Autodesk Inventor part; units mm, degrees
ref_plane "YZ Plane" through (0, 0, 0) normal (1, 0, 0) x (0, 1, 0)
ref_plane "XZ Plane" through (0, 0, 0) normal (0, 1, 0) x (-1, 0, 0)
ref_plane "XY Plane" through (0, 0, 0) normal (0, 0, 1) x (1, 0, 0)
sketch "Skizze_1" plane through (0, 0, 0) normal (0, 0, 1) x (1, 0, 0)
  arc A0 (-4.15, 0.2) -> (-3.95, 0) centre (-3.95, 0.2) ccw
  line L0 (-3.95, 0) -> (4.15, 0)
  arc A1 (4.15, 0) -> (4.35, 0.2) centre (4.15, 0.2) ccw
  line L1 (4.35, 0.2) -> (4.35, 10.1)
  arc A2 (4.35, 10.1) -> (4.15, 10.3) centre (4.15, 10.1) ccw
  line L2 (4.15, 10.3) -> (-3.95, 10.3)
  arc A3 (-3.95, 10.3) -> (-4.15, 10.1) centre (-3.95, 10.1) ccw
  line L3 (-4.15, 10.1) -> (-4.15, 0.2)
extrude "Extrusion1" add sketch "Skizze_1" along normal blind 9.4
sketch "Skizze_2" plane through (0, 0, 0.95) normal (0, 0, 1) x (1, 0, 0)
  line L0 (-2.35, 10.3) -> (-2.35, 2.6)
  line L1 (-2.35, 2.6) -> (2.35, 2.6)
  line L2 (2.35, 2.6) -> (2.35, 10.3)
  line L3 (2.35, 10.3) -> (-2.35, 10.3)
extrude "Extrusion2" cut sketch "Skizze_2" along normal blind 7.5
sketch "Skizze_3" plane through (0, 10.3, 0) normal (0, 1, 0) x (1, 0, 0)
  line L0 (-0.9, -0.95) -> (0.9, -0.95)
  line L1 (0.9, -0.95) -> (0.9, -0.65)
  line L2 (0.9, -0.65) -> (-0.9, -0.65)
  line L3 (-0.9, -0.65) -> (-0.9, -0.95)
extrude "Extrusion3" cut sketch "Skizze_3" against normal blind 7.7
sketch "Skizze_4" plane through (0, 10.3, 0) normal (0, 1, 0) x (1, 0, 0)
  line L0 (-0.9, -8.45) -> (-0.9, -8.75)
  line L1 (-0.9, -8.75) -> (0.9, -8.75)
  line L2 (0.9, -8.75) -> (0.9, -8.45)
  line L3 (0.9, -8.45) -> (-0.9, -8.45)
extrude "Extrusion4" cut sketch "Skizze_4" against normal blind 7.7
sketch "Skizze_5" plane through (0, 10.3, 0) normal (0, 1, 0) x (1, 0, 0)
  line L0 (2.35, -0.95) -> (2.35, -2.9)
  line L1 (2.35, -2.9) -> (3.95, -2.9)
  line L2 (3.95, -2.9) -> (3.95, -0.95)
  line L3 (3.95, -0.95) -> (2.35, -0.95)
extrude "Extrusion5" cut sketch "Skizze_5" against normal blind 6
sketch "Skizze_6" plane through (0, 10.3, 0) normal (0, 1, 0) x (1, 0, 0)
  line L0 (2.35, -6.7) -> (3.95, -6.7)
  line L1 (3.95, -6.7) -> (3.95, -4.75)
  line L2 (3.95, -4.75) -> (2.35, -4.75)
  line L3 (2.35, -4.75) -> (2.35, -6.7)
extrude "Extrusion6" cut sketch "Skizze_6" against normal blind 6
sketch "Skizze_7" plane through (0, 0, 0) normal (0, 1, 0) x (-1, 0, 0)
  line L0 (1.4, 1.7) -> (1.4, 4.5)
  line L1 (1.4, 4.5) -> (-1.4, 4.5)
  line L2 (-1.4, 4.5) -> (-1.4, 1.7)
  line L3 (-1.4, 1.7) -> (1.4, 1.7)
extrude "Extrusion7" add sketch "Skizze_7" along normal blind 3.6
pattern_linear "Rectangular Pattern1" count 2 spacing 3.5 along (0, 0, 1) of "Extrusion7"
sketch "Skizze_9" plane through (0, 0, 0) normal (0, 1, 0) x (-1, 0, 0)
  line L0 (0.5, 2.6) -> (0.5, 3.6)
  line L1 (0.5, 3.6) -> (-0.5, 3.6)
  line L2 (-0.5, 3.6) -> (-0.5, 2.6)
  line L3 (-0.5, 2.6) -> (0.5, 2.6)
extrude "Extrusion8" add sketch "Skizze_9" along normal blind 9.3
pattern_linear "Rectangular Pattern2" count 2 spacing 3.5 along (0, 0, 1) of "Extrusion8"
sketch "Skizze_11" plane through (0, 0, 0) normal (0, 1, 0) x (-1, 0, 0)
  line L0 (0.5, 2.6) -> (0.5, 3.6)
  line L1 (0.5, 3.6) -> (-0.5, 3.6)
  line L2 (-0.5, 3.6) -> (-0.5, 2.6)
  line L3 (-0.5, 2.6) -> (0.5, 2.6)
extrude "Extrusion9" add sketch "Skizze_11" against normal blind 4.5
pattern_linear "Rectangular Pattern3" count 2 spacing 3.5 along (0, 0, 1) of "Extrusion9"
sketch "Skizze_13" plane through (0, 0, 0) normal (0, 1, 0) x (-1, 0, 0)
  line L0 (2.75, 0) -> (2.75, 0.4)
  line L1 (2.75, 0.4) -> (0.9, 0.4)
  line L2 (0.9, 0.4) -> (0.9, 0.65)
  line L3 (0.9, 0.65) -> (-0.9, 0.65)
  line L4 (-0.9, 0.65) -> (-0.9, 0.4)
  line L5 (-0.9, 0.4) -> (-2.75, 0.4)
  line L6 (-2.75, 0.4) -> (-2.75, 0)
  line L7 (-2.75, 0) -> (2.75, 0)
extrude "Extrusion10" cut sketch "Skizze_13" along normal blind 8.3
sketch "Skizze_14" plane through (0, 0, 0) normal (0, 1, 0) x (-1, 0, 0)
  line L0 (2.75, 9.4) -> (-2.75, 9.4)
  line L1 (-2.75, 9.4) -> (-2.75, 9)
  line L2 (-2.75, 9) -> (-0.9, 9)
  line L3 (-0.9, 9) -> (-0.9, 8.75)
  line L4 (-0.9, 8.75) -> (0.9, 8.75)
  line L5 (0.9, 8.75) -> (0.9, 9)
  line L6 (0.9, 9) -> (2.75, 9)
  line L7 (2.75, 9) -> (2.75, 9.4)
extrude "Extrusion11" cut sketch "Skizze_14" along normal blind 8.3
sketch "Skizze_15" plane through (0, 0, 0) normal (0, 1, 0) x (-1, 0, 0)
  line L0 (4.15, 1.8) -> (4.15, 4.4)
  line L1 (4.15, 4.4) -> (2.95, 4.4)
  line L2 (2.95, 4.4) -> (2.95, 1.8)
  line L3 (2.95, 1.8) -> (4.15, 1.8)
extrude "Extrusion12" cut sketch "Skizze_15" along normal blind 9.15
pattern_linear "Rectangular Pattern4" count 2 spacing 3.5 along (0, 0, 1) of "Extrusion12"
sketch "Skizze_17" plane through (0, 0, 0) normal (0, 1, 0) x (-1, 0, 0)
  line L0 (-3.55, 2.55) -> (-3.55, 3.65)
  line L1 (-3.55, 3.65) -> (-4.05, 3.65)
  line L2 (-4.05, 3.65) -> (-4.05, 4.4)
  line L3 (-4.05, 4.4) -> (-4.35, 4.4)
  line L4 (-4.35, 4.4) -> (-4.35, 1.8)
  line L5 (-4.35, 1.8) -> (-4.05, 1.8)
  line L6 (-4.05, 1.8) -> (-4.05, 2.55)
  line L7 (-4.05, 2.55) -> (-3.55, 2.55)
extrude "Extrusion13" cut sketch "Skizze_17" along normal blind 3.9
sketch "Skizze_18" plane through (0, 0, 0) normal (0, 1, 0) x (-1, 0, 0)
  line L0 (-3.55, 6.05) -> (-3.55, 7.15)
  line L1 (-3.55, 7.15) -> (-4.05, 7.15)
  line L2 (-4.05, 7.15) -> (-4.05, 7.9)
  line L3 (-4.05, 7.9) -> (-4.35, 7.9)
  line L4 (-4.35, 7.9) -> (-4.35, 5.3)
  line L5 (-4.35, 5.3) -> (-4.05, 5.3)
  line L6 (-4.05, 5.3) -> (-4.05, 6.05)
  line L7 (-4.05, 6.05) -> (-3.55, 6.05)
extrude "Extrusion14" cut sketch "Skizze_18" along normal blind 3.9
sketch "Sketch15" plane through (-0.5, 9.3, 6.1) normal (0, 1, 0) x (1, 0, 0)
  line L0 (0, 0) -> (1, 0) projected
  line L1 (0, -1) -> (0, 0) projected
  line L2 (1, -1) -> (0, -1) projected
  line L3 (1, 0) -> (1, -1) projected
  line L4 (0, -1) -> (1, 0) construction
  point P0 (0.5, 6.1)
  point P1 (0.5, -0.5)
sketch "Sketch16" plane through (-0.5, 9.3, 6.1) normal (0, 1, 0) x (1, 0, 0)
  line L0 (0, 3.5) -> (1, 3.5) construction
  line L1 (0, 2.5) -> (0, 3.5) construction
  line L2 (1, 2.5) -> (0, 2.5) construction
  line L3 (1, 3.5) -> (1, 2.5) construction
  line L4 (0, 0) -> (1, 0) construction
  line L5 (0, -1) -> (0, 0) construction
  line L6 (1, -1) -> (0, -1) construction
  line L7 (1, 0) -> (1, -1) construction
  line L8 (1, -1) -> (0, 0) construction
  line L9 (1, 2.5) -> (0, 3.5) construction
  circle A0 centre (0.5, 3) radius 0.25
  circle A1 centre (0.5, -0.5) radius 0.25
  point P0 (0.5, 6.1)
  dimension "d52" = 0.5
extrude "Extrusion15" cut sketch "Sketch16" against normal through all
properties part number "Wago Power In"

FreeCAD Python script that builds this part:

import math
import FreeCAD as App
import Part
import Sketcher
Q = App.Units.Quantity


def add_polygon(sketch, points):
    """Adds a closed chain of lines whose ends are joined by coincident constraints."""
    first, n = sketch.GeometryCount, len(points)
    for a, b in zip(points, points[1:] + points[:1]):
        sketch.addGeometry(Part.LineSegment(App.Vector(*a, 0), App.Vector(*b, 0)), False)
    for i in range(n):
        sketch.addConstraint(Sketcher.Constraint("Coincident", first + i, 2, first + (i + 1) % n, 1))

doc = App.newDocument("Part")
body = doc.addObject("PartDesign::Body", "Body")

sketch1 = body.newObject("Sketcher::SketchObject", "Sketch")
sketch1.AttachmentSupport = (doc.getObject("XY_Plane"), [""])
sketch1.MapMode = "FlatFace"
sketch1.addGeometry([
    Part.LineSegment(App.Vector(-4.15, 10.1, 0), App.Vector(-4.15, 0.2, 0)),
    Part.ArcOfCircle(Part.Circle(App.Vector(-3.95, 0.2, 0), App.Vector(0, 0, 1), 0.2), math.radians(180), math.radians(270)),
    Part.LineSegment(App.Vector(-3.95, 0, 0), App.Vector(4.15, 0, 0)),
    Part.ArcOfCircle(Part.Circle(App.Vector(4.15, 0.2, 0), App.Vector(0, 0, 1), 0.2), math.radians(-90), math.radians(0)),
    Part.LineSegment(App.Vector(4.35, 0.2, 0), App.Vector(4.35, 10.1, 0)),
    Part.ArcOfCircle(Part.Circle(App.Vector(4.15, 10.1, 0), App.Vector(0, 0, 1), 0.2), math.radians(0), math.radians(90)),
    Part.LineSegment(App.Vector(4.15, 10.3, 0), App.Vector(-3.95, 10.3, 0)),
    Part.ArcOfCircle(Part.Circle(App.Vector(-3.95, 10.1, 0), App.Vector(0, 0, 1), 0.2), math.radians(90), math.radians(180)),
], False)
sketch1.addConstraint([
    Sketcher.Constraint("Tangent", 0, 2, 1, 1),
    Sketcher.Constraint("Tangent", 1, 2, 2, 1),
    Sketcher.Constraint("Tangent", 2, 2, 3, 1),
    Sketcher.Constraint("Tangent", 3, 2, 4, 1),
    Sketcher.Constraint("Tangent", 4, 2, 5, 1),
    Sketcher.Constraint("Tangent", 5, 2, 6, 1),
    Sketcher.Constraint("Tangent", 6, 2, 7, 1),
    Sketcher.Constraint("Tangent", 7, 2, 0, 1),
    Sketcher.Constraint("Vertical", 0),
    Sketcher.Constraint("Horizontal", 2),
    Sketcher.Constraint("Vertical", 4),
    Sketcher.Constraint("Horizontal", 6),
    Sketcher.Constraint("Equal", 1, 3),
    Sketcher.Constraint("Equal", 3, 5),
    Sketcher.Constraint("Equal", 5, 7),
    Sketcher.Constraint("PointOnObject", 1, 2, -1),
    Sketcher.Constraint("Radius", 1, Q("0.2 mm")),
    Sketcher.Constraint("DistanceX", 2, 1, 2, 2, Q("8.1 mm")),
    Sketcher.Constraint("DistanceY", 0, 2, 0, 1, Q("9.9 mm")),
    Sketcher.Constraint("DistanceX", 1, 3, -1, 1, Q("3.95 mm")),
])
pad1 = body.newObject("PartDesign::Pad", "Pad")
pad1.Profile = sketch1
pad1.Length = 9.4

sketch2 = body.newObject("Sketcher::SketchObject", "Sketch001")
sketch2.AttachmentSupport = (doc.getObject("XY_Plane"), [""])
sketch2.MapMode = "FlatFace"
sketch2.AttachmentOffset = App.Placement(App.Vector(0, 0, 0.95), App.Rotation())
add_polygon(sketch2, [(2.4, 10.3), (-2.4, 10.3), (-2.4, 2.6), (2.4, 2.6)])
sketch2.addConstraint([
    Sketcher.Constraint("Horizontal", 0),
    Sketcher.Constraint("Vertical", 1),
    Sketcher.Constraint("Horizontal", 2),
    Sketcher.Constraint("Vertical", 3),
    Sketcher.Constraint("DistanceX", 0, 2, 0, 1, Q("4.7 mm")),
    Sketcher.Constraint("DistanceY", 1, 2, 1, 1, Q("7.7 mm")),
    Sketcher.Constraint("DistanceY", -1, 1, 0, 2, Q("10.3 mm")),
    Sketcher.Constraint("DistanceX", 0, 2, -1, 1, Q("2.35 mm")),
])
pocket1 = body.newObject("PartDesign::Pocket", "Pocket")
pocket1.Profile = sketch2
pocket1.Length = 7.5
pocket1.Reversed = True

sketch3 = body.newObject("Sketcher::SketchObject", "Sketch002")
sketch3.AttachmentSupport = (doc.getObject("XZ_Plane"), [""])
sketch3.MapMode = "FlatFace"
sketch3.AttachmentOffset = App.Placement(App.Vector(0, 0, -10.3), App.Rotation())
add_polygon(sketch3, [(-0.9, 0.65), (-0.9, 0.95), (0.9, 0.95), (0.9, 0.65)])
sketch3.addConstraint([
    Sketcher.Constraint("Vertical", 0),
    Sketcher.Constraint("Horizontal", 1),
    Sketcher.Constraint("Vertical", 2),
    Sketcher.Constraint("Horizontal", 3),
    Sketcher.Constraint("DistanceX", 1, 1, 1, 2, Q("1.8 mm")),
    Sketcher.Constraint("DistanceY", 0, 1, 0, 2, Q("0.3 mm")),
    Sketcher.Constraint("DistanceX", 0, 2, -1, 1, Q("0.9 mm")),
    Sketcher.Constraint("DistanceY", -1, 1, 0, 2, Q("0.95 mm")),
])
pocket2 = body.newObject("PartDesign::Pocket", "Pocket001")
pocket2.Profile = sketch3
pocket2.Length = 7.7
pocket2.Reversed = True

sketch4 = body.newObject("Sketcher::SketchObject", "Sketch003")
sketch4.AttachmentSupport = (doc.getObject("XZ_Plane"), [""])
sketch4.MapMode = "FlatFace"
sketch4.AttachmentOffset = App.Placement(App.Vector(0, 0, -10.3), App.Rotation())
add_polygon(sketch4, [(0.9, 8.45), (-0.9, 8.45), (-0.9, 8.75), (0.9, 8.75)])
sketch4.addConstraint([
    Sketcher.Constraint("Horizontal", 0),
    Sketcher.Constraint("Vertical", 1),
    Sketcher.Constraint("Horizontal", 2),
    Sketcher.Constraint("Vertical", 3),
    Sketcher.Constraint("DistanceX", 0, 2, 0, 1, Q("1.8 mm")),
    Sketcher.Constraint("DistanceY", 1, 1, 1, 2, Q("0.3 mm")),
    Sketcher.Constraint("DistanceX", 0, 2, -1, 1, Q("0.9 mm")),
    Sketcher.Constraint("DistanceY", -1, 1, 0, 2, Q("8.45 mm")),
])
pocket3 = body.newObject("PartDesign::Pocket", "Pocket002")
pocket3.Profile = sketch4
pocket3.Length = 7.7
pocket3.Reversed = True

sketch5 = body.newObject("Sketcher::SketchObject", "Sketch004")
sketch5.AttachmentSupport = (doc.getObject("XZ_Plane"), [""])
sketch5.MapMode = "FlatFace"
sketch5.AttachmentOffset = App.Placement(App.Vector(0, 0, -10.3), App.Rotation())
add_polygon(sketch5, [(4, 0.9), (2.4, 0.9), (2.4, 2.9), (4, 2.9)])
sketch5.addConstraint([
    Sketcher.Constraint("Horizontal", 0),
    Sketcher.Constraint("Vertical", 1),
    Sketcher.Constraint("Horizontal", 2),
    Sketcher.Constraint("Vertical", 3),
    Sketcher.Constraint("DistanceX", 0, 2, 0, 1, Q("1.6 mm")),
    Sketcher.Constraint("DistanceY", 1, 1, 1, 2, Q("1.95 mm")),
    Sketcher.Constraint("DistanceY", -1, 1, 1, 2, Q("2.9 mm")),
    Sketcher.Constraint("DistanceX", -1, 1, 0, 2, Q("2.35 mm")),
])
pocket4 = body.newObject("PartDesign::Pocket", "Pocket003")
pocket4.Profile = sketch5
pocket4.Length = 6
pocket4.Reversed = True

sketch6 = body.newObject("Sketcher::SketchObject", "Sketch005")
sketch6.AttachmentSupport = (doc.getObject("XZ_Plane"), [""])
sketch6.MapMode = "FlatFace"
sketch6.AttachmentOffset = App.Placement(App.Vector(0, 0, -10.3), App.Rotation())
add_polygon(sketch6, [(2.4, 4.8), (2.4, 6.7), (4, 6.7), (4, 4.8)])
sketch6.addConstraint([
    Sketcher.Constraint("Vertical", 0),
    Sketcher.Constraint("Horizontal", 1),
    Sketcher.Constraint("Vertical", 2),
    Sketcher.Constraint("Horizontal", 3),
    Sketcher.Constraint("DistanceX", 1, 1, 1, 2, Q("1.6 mm")),
    Sketcher.Constraint("DistanceY", 0, 1, 0, 2, Q("1.95 mm")),
    Sketcher.Constraint("DistanceY", -1, 1, 0, 2, Q("6.7 mm")),
    Sketcher.Constraint("DistanceX", -1, 1, 0, 2, Q("2.35 mm")),
])
pocket5 = body.newObject("PartDesign::Pocket", "Pocket004")
pocket5.Profile = sketch6
pocket5.Length = 6
pocket5.Reversed = True

sketch7 = body.newObject("Sketcher::SketchObject", "Sketch006")
sketch7.AttachmentSupport = (doc.getObject("XZ_Plane"), [""])
sketch7.MapMode = "FlatFace"
add_polygon(sketch7, [(1.4, 1.7), (-1.4, 1.7), (-1.4, 4.5), (1.4, 4.5)])
sketch7.addConstraint([
    Sketcher.Constraint("Horizontal", 0),
    Sketcher.Constraint("Vertical", 1),
    Sketcher.Constraint("Horizontal", 2),
    Sketcher.Constraint("Vertical", 3),
    Sketcher.Constraint("Equal", 2, 1),
    Sketcher.Constraint("DistanceX", 0, 2, 0, 1, Q("2.8 mm")),
    Sketcher.Constraint("DistanceX", 0, 2, -1, 1, Q("1.4 mm")),
    Sketcher.Constraint("DistanceY", -1, 1, 0, 2, Q("1.7 mm")),
])
pad2 = body.newObject("PartDesign::Pad", "Pad001")
pad2.Profile = sketch7
pad2.Length = 3.6
pad2.Reversed = True
doc.recompute()

linearpattern = body.newObject("PartDesign::LinearPattern", "LinearPattern")
linearpattern.Originals = [pad2]
linearpattern.Direction = (doc.getObject("Z_Axis"), [""])
linearpattern.Mode = "offset"
linearpattern.Offset = 3.5
linearpattern.Occurrences = 2
body.Tip = linearpattern

sketch8 = body.newObject("Sketcher::SketchObject", "Sketch007")
sketch8.AttachmentSupport = (doc.getObject("XZ_Plane"), [""])
sketch8.MapMode = "FlatFace"
add_polygon(sketch8, [(0.5, 2.6), (-0.5, 2.6), (-0.5, 3.6), (0.5, 3.6)])
sketch8.addConstraint([
    Sketcher.Constraint("Horizontal", 0),
    Sketcher.Constraint("Vertical", 1),
    Sketcher.Constraint("Horizontal", 2),
    Sketcher.Constraint("Vertical", 3),
    Sketcher.Constraint("Equal", 2, 1),
    Sketcher.Constraint("DistanceX", 0, 2, 0, 1, Q("1 mm")),
    Sketcher.Constraint("DistanceX", 0, 2, -1, 1, Q("0.5 mm")),
    Sketcher.Constraint("DistanceY", -1, 1, 0, 2, Q("2.6 mm")),
])
pad3 = body.newObject("PartDesign::Pad", "Pad002")
pad3.Profile = sketch8
pad3.Length = 9.3
pad3.Reversed = True
doc.recompute()

linearpattern2 = body.newObject("PartDesign::LinearPattern", "LinearPattern001")
linearpattern2.Originals = [pad3]
linearpattern2.Direction = (doc.getObject("Z_Axis"), [""])
linearpattern2.Mode = "offset"
linearpattern2.Offset = 3.5
linearpattern2.Occurrences = 2
body.Tip = linearpattern2

sketch9 = body.newObject("Sketcher::SketchObject", "Sketch008")
sketch9.AttachmentSupport = (doc.getObject("XZ_Plane"), [""])
sketch9.MapMode = "FlatFace"
add_polygon(sketch9, [(0.5, 2.6), (-0.5, 2.6), (-0.5, 3.6), (0.5, 3.6)])
sketch9.addConstraint([
    Sketcher.Constraint("Horizontal", 0),
    Sketcher.Constraint("Vertical", 1),
    Sketcher.Constraint("Horizontal", 2),
    Sketcher.Constraint("Vertical", 3),
    Sketcher.Constraint("Equal", 2, 1),
    Sketcher.Constraint("DistanceX", 0, 2, 0, 1, Q("1 mm")),
    Sketcher.Constraint("DistanceX", 0, 2, -1, 1, Q("0.5 mm")),
    Sketcher.Constraint("DistanceY", -1, 1, 0, 2, Q("2.6 mm")),
])
pad4 = body.newObject("PartDesign::Pad", "Pad003")
pad4.Profile = sketch9
pad4.Length = 4.5
doc.recompute()

linearpattern3 = body.newObject("PartDesign::LinearPattern", "LinearPattern002")
linearpattern3.Originals = [pad4]
linearpattern3.Direction = (doc.getObject("Z_Axis"), [""])
linearpattern3.Mode = "offset"
linearpattern3.Offset = 3.5
linearpattern3.Occurrences = 2
body.Tip = linearpattern3

sketch10 = body.newObject("Sketcher::SketchObject", "Sketch009")
sketch10.AttachmentSupport = (doc.getObject("XZ_Plane"), [""])
sketch10.MapMode = "FlatFace"
add_polygon(sketch10, [(2.75, 0), (-2.75, 0), (-2.75, 0.4), (-0.9, 0.4), (-0.9, 0.65), (0.9, 0.65), (0.9, 0.4), (2.75, 0.4)])
sketch10.addConstraint([
    Sketcher.Constraint("Horizontal", 0),
    Sketcher.Constraint("Vertical", 1),
    Sketcher.Constraint("Horizontal", 2),
    Sketcher.Constraint("Vertical", 3),
    Sketcher.Constraint("Horizontal", 4),
    Sketcher.Constraint("Vertical", 5),
    Sketcher.Constraint("Horizontal", 6),
    Sketcher.Constraint("Vertical", 7),
    Sketcher.Constraint("Symmetric", 0, 2, 7, 2, -1, 1),
    Sketcher.Constraint("Symmetric", 2, 2, 5, 2, -2),
    Sketcher.Constraint("DistanceX", 0, 2, 0, 1, Q("5.5 mm")),
    Sketcher.Constraint("DistanceX", 4, 1, 4, 2, Q("1.8 mm")),
    Sketcher.Constraint("DistanceY", 1, 1, 1, 2, Q("0.4 mm")),
    Sketcher.Constraint("DistanceY", 3, 1, 3, 2, Q("0.25 mm")),
])
pocket6 = body.newObject("PartDesign::Pocket", "Pocket005")
pocket6.Profile = sketch10
pocket6.Length = 8.3

sketch11 = body.newObject("Sketcher::SketchObject", "Sketch010")
sketch11.AttachmentSupport = (doc.getObject("XZ_Plane"), [""])
sketch11.MapMode = "FlatFace"
add_polygon(sketch11, [(-2.75, 9), (-2.75, 9.4), (2.75, 9.4), (2.75, 9), (0.9, 9), (0.9, 8.75), (-0.9, 8.75), (-0.9, 9)])
sketch11.addConstraint([
    Sketcher.Constraint("Vertical", 0),
    Sketcher.Constraint("Horizontal", 1),
    Sketcher.Constraint("Vertical", 2),
    Sketcher.Constraint("Horizontal", 3),
    Sketcher.Constraint("Vertical", 4),
    Sketcher.Constraint("Horizontal", 5),
    Sketcher.Constraint("Vertical", 6),
    Sketcher.Constraint("Horizontal", 7),
    Sketcher.Constraint("Symmetric", 3, 2, 6, 2, -2),
    Sketcher.Constraint("Equal", 3, 7),
    Sketcher.Constraint("DistanceX", 1, 1, 1, 2, Q("5.5 mm")),
    Sketcher.Constraint("DistanceX", 5, 2, 5, 1, Q("1.8 mm")),
    Sketcher.Constraint("DistanceY", 0, 1, 0, 2, Q("0.4 mm")),
    Sketcher.Constraint("DistanceY", -1, 1, 2, 2, Q("9 mm")),
    Sketcher.Constraint("DistanceY", 4, 2, 4, 1, Q("0.25 mm")),
])
pocket7 = body.newObject("PartDesign::Pocket", "Pocket006")
pocket7.Profile = sketch11
pocket7.Length = 8.3

sketch12 = body.newObject("Sketcher::SketchObject", "Sketch011")
sketch12.AttachmentSupport = (doc.getObject("XZ_Plane"), [""])
sketch12.MapMode = "FlatFace"
add_polygon(sketch12, [(-3, 1.8), (-4.2, 1.8), (-4.2, 4.4), (-3, 4.4)])
sketch12.addConstraint([
    Sketcher.Constraint("Horizontal", 0),
    Sketcher.Constraint("Vertical", 1),
    Sketcher.Constraint("Horizontal", 2),
    Sketcher.Constraint("Vertical", 3),
    Sketcher.Constraint("DistanceX", 0, 2, 0, 1, Q("1.2 mm")),
    Sketcher.Constraint("DistanceY", 1, 1, 1, 2, Q("2.6 mm")),
    Sketcher.Constraint("DistanceY", -1, 1, 0, 2, Q("1.8 mm")),
    Sketcher.Constraint("DistanceX", 0, 2, -1, 1, Q("4.15 mm")),
])
pocket8 = body.newObject("PartDesign::Pocket", "Pocket007")
pocket8.Profile = sketch12
pocket8.Length = 9.15
doc.recompute()

linearpattern4 = body.newObject("PartDesign::LinearPattern", "LinearPattern003")
linearpattern4.Originals = [pocket8]
linearpattern4.Direction = (doc.getObject("Z_Axis"), [""])
linearpattern4.Mode = "offset"
linearpattern4.Offset = 3.5
linearpattern4.Occurrences = 2
body.Tip = linearpattern4

sketch13 = body.newObject("Sketcher::SketchObject", "Sketch012")
sketch13.AttachmentSupport = (doc.getObject("XZ_Plane"), [""])
sketch13.MapMode = "FlatFace"
add_polygon(sketch13, [(4.05, 2.55), (3.55, 2.55), (3.55, 3.65), (4.05, 3.65), (4.05, 4.4), (4.35, 4.4), (4.35, 1.8), (4.05, 1.8)])
sketch13.addConstraint([
    Sketcher.Constraint("Horizontal", 0),
    Sketcher.Constraint("Vertical", 1),
    Sketcher.Constraint("Horizontal", 2),
    Sketcher.Constraint("Vertical", 3),
    Sketcher.Constraint("Horizontal", 4),
    Sketcher.Constraint("Vertical", 5),
    Sketcher.Constraint("Horizontal", 6),
    Sketcher.Constraint("Vertical", 7),
    Sketcher.Constraint("Vertical", 3, 2, 6, 2),
    Sketcher.Constraint("Equal", 3, 7),
    Sketcher.Constraint("DistanceX", 0, 2, 0, 1, Q("0.5 mm")),
    Sketcher.Constraint("DistanceX", 4, 1, 4, 2, Q("0.3 mm")),
    Sketcher.Constraint("DistanceY", 1, 1, 1, 2, Q("1.1 mm")),
    Sketcher.Constraint("DistanceY", 5, 2, 5, 1, Q("2.6 mm")),
    Sketcher.Constraint("DistanceY", -1, 1, 3, 2, Q("4.4 mm")),
    Sketcher.Constraint("DistanceX", -1, 1, 0, 2, Q("3.55 mm")),
])
pocket9 = body.newObject("PartDesign::Pocket", "Pocket008")
pocket9.Profile = sketch13
pocket9.Length = 3.9

sketch14 = body.newObject("Sketcher::SketchObject", "Sketch013")
sketch14.AttachmentSupport = (doc.getObject("XZ_Plane"), [""])
sketch14.MapMode = "FlatFace"
add_polygon(sketch14, [(4.05, 6.05), (3.55, 6.05), (3.55, 7.15), (4.05, 7.15), (4.05, 7.9), (4.35, 7.9), (4.35, 5.3), (4.05, 5.3)])
sketch14.addConstraint([
    Sketcher.Constraint("Horizontal", 0),
    Sketcher.Constraint("Vertical", 1),
    Sketcher.Constraint("Horizontal", 2),
    Sketcher.Constraint("Vertical", 3),
    Sketcher.Constraint("Horizontal", 4),
    Sketcher.Constraint("Vertical", 5),
    Sketcher.Constraint("Horizontal", 6),
    Sketcher.Constraint("Vertical", 7),
    Sketcher.Constraint("Vertical", 3, 2, 6, 2),
    Sketcher.Constraint("Equal", 3, 7),
    Sketcher.Constraint("DistanceX", 0, 2, 0, 1, Q("0.5 mm")),
    Sketcher.Constraint("DistanceX", 4, 1, 4, 2, Q("0.3 mm")),
    Sketcher.Constraint("DistanceY", 1, 1, 1, 2, Q("1.1 mm")),
    Sketcher.Constraint("DistanceY", 5, 2, 5, 1, Q("2.6 mm")),
    Sketcher.Constraint("DistanceY", -1, 1, 3, 2, Q("7.9 mm")),
    Sketcher.Constraint("DistanceX", -1, 1, 0, 2, Q("3.55 mm")),
])
pocket10 = body.newObject("PartDesign::Pocket", "Pocket009")
pocket10.Profile = sketch14
pocket10.Length = 3.9

sketch15 = body.newObject("Sketcher::SketchObject", "Sketch014")
sketch15.AttachmentSupport = (doc.getObject("XZ_Plane"), [""])
sketch15.MapMode = "FlatFace"
sketch15.AttachmentOffset = App.Placement(App.Vector(0, 0, -9.3), App.Rotation())
sketch15.addGeometry([
    Part.Circle(App.Vector(0, 3.1, 0), App.Vector(0, 0, 1), 0.25),
    Part.Circle(App.Vector(0, 6.6, 0), App.Vector(0, 0, 1), 0.25),
], False)
sketch15.addConstraint([
    Sketcher.Constraint("Equal", 0, 1),
    Sketcher.Constraint("PointOnObject", 0, 3, -2),
    Sketcher.Constraint("PointOnObject", 1, 3, -2),
    Sketcher.Constraint("Diameter", 0, Q("0.5 mm")),
    Sketcher.Constraint("DistanceY", -1, 1, 0, 3, Q("3.1 mm")),
    Sketcher.Constraint("DistanceY", -1, 1, 1, 3, Q("6.6 mm")),
])
pocket11 = body.newObject("PartDesign::Pocket", "Pocket010")
pocket11.Profile = sketch15
pocket11.Type = "ThroughAll"
pocket11.Reversed = True

doc.recompute()
